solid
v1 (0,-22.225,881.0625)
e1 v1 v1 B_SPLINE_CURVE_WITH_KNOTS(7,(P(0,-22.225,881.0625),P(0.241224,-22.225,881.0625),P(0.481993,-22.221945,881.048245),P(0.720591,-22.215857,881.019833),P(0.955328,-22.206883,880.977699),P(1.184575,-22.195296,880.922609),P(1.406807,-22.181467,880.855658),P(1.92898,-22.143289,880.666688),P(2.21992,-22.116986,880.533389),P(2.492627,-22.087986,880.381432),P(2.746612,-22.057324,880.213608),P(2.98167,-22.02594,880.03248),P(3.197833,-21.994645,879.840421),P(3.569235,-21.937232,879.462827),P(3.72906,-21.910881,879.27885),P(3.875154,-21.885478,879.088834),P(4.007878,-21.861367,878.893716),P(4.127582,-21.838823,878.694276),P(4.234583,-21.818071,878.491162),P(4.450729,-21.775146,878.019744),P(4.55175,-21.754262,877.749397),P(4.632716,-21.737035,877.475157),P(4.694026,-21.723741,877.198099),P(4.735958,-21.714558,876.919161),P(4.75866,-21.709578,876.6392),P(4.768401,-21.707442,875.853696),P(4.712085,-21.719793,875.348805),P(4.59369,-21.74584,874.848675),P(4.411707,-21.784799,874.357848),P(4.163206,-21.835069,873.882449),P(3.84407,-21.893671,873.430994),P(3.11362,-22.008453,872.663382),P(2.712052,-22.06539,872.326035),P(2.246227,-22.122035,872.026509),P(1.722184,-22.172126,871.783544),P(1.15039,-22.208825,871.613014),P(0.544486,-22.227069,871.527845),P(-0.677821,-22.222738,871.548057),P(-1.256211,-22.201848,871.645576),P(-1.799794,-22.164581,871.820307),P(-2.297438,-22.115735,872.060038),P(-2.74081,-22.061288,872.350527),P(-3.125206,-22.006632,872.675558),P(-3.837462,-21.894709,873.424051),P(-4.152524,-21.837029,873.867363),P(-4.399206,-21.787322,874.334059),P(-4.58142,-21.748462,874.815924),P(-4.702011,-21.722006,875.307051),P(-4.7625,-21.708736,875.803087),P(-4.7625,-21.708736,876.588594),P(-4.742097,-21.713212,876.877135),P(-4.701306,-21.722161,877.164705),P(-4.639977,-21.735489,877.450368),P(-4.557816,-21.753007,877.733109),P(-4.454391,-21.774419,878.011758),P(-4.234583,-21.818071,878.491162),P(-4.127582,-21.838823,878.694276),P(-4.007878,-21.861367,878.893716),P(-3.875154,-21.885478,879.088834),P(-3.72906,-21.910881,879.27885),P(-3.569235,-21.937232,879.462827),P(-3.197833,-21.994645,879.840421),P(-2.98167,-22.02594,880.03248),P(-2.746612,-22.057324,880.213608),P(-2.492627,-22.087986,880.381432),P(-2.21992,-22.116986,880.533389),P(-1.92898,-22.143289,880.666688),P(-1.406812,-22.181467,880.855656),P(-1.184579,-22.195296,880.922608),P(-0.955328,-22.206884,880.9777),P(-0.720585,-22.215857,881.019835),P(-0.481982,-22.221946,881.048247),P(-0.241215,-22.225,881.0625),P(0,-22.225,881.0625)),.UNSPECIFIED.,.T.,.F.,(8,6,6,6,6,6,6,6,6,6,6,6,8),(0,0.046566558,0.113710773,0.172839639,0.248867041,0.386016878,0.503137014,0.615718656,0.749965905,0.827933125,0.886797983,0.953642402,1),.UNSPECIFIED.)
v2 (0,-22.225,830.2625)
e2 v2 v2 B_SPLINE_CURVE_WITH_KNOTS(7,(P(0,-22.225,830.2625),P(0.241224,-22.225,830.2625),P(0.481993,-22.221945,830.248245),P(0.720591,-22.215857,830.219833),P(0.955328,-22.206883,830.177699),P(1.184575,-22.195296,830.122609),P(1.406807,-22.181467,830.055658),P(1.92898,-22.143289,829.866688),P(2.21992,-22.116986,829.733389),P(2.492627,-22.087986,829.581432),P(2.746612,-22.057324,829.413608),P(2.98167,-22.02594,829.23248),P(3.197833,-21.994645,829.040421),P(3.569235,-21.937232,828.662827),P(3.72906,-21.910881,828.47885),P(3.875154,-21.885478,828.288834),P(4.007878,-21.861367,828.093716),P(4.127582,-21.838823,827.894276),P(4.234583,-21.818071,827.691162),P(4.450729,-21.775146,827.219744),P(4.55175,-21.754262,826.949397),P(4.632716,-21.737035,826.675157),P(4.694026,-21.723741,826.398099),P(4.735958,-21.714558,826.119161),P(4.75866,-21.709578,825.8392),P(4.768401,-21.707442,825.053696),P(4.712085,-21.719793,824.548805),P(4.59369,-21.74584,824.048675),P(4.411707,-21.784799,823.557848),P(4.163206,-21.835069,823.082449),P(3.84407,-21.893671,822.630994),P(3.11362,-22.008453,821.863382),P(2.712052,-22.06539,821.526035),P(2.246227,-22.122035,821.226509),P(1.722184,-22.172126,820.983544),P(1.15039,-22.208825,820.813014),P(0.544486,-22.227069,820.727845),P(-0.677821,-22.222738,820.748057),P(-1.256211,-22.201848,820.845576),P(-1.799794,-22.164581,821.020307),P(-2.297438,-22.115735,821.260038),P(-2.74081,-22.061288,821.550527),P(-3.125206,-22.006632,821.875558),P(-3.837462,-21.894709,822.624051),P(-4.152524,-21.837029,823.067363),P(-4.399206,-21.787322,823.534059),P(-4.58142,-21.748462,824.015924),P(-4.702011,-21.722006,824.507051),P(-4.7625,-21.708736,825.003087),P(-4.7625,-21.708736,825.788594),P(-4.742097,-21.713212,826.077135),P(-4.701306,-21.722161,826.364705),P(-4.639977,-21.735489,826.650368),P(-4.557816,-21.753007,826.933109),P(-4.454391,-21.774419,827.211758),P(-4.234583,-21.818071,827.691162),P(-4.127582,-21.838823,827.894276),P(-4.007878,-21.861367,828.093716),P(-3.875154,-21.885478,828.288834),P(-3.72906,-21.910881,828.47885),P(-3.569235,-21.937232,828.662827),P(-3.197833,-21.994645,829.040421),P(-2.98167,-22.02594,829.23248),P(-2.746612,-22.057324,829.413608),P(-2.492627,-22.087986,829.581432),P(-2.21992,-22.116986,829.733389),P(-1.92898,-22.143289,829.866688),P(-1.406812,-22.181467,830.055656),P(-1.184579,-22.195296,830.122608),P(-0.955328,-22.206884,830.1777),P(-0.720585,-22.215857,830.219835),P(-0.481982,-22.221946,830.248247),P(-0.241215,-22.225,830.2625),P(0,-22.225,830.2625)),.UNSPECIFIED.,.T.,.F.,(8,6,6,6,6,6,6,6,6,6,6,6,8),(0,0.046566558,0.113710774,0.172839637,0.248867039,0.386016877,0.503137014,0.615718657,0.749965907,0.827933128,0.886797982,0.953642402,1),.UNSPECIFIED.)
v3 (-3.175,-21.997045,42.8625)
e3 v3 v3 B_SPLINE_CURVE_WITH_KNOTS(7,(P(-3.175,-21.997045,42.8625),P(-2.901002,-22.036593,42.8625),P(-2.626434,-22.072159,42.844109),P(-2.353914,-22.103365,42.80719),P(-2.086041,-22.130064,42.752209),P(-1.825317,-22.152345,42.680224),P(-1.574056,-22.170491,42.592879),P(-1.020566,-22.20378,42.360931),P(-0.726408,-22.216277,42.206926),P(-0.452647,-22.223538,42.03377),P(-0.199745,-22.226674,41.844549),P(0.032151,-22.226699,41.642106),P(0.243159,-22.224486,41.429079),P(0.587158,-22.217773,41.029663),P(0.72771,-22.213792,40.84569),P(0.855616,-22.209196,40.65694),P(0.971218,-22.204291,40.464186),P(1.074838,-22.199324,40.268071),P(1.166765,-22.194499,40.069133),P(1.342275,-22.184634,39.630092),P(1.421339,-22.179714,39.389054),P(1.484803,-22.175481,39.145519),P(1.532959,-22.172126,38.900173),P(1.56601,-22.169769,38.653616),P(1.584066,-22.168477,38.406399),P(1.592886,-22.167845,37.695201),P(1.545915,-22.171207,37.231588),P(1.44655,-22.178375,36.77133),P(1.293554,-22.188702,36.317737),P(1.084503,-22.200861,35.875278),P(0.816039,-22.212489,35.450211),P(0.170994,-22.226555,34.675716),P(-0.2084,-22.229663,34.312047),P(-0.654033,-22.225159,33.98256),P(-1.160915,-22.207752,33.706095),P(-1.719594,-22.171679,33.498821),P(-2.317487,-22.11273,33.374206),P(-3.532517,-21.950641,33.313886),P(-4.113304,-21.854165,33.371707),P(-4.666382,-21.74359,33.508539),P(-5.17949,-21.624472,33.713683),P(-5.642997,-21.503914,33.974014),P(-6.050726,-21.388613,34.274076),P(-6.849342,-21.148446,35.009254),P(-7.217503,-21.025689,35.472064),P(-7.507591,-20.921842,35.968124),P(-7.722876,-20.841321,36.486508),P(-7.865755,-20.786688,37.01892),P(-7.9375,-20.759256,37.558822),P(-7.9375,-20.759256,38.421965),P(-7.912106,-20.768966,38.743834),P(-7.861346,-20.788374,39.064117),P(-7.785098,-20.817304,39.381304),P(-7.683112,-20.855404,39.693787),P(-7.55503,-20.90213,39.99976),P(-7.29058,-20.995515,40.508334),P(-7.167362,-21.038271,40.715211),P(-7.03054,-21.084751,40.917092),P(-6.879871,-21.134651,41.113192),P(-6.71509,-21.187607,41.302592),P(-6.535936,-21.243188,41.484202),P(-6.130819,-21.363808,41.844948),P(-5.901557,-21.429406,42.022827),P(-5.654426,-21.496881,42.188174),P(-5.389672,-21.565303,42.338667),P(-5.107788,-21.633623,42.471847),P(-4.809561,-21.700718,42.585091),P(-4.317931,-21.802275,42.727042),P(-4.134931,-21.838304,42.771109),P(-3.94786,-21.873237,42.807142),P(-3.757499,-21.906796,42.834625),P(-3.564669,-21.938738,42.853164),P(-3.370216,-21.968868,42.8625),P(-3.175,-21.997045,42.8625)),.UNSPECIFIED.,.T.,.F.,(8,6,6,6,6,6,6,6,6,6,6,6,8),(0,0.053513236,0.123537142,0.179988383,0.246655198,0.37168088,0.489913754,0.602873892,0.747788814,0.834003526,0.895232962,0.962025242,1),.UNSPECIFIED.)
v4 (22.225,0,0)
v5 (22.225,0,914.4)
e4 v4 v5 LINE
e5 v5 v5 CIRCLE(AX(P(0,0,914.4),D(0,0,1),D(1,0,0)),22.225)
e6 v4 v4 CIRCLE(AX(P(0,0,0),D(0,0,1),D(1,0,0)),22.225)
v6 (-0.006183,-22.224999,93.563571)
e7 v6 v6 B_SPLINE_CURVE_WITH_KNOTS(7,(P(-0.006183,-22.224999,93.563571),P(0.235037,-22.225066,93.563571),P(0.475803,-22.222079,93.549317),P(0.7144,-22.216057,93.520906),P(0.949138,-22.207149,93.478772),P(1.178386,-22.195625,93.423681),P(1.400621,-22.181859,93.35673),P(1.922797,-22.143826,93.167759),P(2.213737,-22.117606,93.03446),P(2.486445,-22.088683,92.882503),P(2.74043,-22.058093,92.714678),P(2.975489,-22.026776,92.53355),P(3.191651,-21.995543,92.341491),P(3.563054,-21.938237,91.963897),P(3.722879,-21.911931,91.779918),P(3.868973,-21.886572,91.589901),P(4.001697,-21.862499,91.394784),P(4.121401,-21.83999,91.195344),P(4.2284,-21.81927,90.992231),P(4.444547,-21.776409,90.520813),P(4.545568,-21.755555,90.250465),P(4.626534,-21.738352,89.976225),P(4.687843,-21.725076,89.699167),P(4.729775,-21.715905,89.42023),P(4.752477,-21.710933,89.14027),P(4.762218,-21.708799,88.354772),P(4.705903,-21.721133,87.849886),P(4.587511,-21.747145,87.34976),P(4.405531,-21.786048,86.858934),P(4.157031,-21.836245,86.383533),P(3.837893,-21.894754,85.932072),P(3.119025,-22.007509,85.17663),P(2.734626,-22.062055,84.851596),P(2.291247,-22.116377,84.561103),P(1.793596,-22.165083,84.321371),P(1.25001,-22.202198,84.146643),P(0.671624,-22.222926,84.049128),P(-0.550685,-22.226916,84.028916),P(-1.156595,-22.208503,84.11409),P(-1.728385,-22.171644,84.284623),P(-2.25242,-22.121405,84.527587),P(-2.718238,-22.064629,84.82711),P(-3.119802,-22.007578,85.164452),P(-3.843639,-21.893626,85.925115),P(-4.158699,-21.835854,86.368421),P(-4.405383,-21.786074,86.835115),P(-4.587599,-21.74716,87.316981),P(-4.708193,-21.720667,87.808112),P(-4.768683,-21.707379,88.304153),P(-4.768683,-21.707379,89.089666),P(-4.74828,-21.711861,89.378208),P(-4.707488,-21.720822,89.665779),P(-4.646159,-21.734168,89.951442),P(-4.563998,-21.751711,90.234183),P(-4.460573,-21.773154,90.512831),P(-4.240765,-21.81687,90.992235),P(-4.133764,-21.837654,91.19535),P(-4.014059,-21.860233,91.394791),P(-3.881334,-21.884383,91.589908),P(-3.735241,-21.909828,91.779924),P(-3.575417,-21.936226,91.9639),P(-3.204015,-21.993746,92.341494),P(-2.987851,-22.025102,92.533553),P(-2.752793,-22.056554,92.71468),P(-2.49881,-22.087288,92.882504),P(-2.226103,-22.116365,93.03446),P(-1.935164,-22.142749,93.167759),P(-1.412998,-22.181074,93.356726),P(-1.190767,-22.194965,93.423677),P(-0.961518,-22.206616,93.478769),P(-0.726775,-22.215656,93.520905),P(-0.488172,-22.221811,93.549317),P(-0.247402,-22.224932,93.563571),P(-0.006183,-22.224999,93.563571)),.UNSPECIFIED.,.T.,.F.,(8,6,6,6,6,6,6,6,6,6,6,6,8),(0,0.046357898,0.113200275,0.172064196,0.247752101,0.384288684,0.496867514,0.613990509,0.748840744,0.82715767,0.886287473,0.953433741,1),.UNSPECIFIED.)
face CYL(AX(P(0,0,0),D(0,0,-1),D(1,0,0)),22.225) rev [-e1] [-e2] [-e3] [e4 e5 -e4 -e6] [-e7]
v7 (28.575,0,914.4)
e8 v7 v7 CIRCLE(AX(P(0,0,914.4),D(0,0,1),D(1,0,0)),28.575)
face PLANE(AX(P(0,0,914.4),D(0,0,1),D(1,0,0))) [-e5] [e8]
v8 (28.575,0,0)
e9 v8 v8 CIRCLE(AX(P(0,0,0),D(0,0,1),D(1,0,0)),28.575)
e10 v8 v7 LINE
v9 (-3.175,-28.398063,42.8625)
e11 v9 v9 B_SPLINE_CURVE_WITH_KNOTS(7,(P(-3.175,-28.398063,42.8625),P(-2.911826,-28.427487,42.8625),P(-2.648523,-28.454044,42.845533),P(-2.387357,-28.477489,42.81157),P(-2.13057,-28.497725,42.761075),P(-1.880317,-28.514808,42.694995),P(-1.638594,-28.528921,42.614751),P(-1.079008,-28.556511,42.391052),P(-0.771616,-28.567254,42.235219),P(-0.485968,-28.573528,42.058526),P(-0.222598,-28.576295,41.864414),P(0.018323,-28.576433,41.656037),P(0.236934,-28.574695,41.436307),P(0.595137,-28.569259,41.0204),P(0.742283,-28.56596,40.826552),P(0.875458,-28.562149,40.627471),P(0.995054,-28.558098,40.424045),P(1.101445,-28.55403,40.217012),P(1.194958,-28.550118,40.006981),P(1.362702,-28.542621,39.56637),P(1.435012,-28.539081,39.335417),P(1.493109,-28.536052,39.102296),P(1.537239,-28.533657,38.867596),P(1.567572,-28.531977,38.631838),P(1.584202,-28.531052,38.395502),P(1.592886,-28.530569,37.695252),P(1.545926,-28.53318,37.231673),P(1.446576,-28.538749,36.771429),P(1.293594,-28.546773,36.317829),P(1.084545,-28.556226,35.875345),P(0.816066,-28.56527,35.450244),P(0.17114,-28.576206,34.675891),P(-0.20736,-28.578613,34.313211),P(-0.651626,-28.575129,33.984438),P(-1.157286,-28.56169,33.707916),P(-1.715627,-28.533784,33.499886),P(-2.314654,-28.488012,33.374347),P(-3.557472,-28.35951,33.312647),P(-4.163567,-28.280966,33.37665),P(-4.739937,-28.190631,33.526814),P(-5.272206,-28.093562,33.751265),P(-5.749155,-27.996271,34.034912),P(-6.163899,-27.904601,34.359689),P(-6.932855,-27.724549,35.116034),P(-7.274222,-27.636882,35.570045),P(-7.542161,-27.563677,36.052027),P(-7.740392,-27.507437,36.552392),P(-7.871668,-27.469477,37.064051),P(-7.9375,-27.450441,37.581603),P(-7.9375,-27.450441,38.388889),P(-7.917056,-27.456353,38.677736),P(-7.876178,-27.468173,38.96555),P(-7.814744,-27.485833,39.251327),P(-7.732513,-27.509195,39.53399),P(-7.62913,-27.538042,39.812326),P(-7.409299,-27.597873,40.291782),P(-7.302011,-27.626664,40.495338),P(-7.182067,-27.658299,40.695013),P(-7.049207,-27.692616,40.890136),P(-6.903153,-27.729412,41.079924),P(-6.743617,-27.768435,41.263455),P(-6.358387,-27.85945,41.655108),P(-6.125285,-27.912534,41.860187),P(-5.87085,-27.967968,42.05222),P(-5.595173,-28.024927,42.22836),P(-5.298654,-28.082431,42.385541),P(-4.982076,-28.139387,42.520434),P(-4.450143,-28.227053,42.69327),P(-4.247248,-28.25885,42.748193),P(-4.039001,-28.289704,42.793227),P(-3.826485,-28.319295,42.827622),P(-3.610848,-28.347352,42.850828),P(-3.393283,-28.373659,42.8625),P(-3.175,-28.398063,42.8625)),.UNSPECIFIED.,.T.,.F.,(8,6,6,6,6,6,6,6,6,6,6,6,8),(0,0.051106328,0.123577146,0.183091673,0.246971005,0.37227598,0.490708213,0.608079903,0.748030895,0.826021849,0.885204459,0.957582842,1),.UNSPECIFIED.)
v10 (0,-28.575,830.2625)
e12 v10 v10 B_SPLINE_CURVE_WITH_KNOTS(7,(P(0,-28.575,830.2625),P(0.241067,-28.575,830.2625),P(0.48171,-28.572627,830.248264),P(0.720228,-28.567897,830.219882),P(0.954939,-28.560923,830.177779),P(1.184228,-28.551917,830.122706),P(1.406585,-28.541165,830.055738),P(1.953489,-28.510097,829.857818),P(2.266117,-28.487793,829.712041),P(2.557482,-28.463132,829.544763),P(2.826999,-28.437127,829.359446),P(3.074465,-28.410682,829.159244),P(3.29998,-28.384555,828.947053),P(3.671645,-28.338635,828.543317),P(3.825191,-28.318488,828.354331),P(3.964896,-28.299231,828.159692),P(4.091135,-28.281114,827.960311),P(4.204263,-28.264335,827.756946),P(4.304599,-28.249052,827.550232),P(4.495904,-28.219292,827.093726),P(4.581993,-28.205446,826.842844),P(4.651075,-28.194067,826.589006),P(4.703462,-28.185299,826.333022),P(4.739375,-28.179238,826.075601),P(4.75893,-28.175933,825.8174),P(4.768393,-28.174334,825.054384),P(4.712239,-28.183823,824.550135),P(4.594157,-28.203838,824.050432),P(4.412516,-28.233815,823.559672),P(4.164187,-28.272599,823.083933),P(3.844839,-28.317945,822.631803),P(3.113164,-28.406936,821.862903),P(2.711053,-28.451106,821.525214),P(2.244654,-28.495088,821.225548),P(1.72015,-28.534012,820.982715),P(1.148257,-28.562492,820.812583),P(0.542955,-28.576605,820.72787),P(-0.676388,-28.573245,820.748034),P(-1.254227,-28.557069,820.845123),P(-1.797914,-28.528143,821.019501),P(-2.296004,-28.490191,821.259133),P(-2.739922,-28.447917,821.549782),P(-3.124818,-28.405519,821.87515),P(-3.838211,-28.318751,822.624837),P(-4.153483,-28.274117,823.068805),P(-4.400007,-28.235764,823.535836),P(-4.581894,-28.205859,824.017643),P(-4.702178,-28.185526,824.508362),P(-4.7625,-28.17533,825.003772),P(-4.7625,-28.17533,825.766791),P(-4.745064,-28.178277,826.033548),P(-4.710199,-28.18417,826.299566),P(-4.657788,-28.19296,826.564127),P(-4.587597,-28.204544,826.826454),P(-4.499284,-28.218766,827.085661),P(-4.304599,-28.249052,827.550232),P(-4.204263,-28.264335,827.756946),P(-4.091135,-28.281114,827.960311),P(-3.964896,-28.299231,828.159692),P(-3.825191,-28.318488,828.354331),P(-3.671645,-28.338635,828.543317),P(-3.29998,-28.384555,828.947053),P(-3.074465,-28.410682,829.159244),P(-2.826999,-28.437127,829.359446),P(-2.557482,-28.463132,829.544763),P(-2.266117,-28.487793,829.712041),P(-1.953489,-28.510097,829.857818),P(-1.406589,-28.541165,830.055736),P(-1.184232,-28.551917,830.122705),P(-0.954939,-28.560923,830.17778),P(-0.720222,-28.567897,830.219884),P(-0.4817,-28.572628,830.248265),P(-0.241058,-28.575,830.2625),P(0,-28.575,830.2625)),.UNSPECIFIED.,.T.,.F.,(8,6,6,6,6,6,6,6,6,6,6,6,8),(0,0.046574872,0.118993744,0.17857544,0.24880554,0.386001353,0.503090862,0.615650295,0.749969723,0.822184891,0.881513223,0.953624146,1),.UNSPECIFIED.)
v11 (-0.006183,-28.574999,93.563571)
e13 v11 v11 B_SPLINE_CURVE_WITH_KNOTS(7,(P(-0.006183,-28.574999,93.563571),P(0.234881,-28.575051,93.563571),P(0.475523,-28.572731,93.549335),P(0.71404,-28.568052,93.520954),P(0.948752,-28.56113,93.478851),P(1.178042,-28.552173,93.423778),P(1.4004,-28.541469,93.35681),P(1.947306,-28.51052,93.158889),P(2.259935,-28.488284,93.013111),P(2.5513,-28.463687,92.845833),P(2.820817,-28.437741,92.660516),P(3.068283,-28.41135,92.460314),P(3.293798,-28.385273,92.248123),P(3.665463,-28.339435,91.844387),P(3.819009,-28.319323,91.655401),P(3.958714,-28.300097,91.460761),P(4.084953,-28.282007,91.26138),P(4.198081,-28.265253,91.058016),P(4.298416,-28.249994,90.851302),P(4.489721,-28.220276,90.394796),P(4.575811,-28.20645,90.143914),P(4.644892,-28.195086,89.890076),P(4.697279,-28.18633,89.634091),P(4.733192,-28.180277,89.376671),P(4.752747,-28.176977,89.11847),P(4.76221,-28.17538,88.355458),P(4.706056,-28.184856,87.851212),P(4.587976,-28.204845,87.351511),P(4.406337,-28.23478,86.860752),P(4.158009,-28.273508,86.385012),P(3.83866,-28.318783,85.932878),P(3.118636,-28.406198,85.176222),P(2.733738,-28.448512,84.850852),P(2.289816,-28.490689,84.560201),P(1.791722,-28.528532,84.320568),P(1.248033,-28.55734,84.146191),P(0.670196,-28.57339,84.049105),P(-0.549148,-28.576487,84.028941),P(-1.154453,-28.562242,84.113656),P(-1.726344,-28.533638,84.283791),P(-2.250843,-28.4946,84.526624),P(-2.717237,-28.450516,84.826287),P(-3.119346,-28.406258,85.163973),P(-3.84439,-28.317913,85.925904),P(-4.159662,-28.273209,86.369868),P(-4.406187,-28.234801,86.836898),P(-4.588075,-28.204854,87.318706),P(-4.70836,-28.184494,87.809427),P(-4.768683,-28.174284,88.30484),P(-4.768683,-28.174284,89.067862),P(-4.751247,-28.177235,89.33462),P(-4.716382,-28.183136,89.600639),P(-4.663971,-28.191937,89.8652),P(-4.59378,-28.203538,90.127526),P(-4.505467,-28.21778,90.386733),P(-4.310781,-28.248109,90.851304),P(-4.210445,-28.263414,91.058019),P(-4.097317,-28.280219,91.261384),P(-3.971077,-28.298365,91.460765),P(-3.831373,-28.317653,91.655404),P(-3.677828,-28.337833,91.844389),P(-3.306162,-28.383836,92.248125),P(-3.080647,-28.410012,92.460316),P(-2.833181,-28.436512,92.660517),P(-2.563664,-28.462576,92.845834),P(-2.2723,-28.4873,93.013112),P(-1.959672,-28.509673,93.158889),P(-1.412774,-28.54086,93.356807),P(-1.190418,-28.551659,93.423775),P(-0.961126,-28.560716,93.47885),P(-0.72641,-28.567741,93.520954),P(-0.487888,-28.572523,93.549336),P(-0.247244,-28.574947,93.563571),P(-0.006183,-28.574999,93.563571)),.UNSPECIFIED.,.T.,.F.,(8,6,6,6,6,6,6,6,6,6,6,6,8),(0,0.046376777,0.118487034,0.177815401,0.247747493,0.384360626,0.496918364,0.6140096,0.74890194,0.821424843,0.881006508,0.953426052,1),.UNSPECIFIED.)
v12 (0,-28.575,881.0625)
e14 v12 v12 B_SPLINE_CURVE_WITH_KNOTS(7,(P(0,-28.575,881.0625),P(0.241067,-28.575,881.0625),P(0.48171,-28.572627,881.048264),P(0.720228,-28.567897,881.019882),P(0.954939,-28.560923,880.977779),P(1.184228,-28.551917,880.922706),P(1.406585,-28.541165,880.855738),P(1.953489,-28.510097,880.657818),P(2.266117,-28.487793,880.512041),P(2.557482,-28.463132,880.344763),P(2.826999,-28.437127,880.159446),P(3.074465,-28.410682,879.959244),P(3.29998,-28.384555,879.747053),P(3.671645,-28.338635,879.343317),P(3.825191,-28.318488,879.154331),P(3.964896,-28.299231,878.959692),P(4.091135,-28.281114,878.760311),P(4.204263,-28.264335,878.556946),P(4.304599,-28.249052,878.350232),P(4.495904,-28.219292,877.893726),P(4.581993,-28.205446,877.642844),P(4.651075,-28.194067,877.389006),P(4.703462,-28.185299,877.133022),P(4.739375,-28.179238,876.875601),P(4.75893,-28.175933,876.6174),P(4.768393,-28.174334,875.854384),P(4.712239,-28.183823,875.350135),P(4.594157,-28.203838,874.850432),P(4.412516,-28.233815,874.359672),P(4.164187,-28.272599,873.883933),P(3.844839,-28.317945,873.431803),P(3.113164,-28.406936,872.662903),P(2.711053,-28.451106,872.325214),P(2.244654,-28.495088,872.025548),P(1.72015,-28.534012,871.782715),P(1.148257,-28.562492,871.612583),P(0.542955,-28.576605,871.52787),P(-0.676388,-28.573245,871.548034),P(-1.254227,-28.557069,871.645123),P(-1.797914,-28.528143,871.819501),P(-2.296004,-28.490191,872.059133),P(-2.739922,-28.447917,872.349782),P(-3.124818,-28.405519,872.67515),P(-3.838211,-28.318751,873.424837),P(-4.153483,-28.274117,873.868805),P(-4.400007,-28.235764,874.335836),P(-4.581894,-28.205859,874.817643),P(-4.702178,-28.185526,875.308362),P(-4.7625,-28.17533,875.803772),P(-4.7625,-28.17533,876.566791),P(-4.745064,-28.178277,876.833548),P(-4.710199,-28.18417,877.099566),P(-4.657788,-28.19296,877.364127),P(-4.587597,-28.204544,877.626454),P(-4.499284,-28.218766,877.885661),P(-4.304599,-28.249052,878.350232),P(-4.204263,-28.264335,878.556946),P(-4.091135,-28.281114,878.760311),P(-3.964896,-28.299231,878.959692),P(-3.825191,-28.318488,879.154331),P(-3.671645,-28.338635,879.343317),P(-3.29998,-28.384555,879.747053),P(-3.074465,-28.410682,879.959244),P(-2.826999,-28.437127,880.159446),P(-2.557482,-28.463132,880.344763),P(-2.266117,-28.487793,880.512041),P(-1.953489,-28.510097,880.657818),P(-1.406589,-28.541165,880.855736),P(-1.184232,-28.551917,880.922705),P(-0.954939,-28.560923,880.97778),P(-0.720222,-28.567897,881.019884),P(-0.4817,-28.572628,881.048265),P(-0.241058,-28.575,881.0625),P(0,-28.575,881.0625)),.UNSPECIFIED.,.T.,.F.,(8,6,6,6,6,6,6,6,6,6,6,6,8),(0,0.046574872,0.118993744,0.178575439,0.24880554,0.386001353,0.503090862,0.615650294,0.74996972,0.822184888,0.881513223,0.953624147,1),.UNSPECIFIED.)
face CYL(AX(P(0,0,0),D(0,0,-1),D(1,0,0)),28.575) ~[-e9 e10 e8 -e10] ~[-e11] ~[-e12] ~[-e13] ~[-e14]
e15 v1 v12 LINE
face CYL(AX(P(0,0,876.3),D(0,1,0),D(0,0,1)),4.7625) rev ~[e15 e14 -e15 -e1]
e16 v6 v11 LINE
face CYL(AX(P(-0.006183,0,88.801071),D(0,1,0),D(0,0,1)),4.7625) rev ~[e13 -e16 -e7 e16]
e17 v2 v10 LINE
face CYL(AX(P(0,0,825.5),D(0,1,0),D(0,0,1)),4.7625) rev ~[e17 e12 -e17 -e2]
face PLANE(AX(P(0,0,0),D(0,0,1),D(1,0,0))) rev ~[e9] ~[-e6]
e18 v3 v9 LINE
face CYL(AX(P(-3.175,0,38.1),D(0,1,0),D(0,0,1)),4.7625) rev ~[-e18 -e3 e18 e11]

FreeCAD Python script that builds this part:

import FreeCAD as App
import Part
import Sketcher
Q = App.Units.Quantity

doc = App.newDocument("Part")
body = doc.addObject("PartDesign::Body", "Body")

sketch1 = body.newObject("Sketcher::SketchObject", "Sketch")
sketch1.AttachmentSupport = (doc.getObject("XY_Plane"), [""])
sketch1.MapMode = "FlatFace"
sketch1.addGeometry(Part.Circle(App.Vector(0, 0, 0), App.Vector(0, 0, 1), 29), False)
sketch1.addGeometry(Part.Circle(App.Vector(0, 0, 0), App.Vector(0, 0, 1), 22), False)
sketch1.addConstraint(Sketcher.Constraint("Coincident", 0, 3, -1, 1))
sketch1.addConstraint(Sketcher.Constraint("Coincident", 1, 3, -1, 1))
sketch1.addConstraint(Sketcher.Constraint("Diameter", 0, Q("2.25 in")))
sketch1.addConstraint(Sketcher.Constraint("Diameter", 1, Q("1.75 in")))
pad1 = body.newObject("PartDesign::Pad", "Pad")
pad1.Profile = sketch1
pad1.Length = Q("36 in")

sketch2 = body.newObject("Sketcher::SketchObject", "Sketch001")
sketch2.AttachmentSupport = (doc.getObject("XZ_Plane"), [""])
sketch2.MapMode = "FlatFace"
sketch2.addGeometry(Part.Circle(App.Vector(-3.2, 38.1, 0), App.Vector(0, 0, 1), 4.8), False)
sketch2.addGeometry(Part.Circle(App.Vector(0, 88.8, 0), App.Vector(0, 0, 1), 4.8), False)
sketch2.addGeometry(Part.Circle(App.Vector(0, 876.3, 0), App.Vector(0, 0, 1), 4.8), False)
sketch2.addGeometry(Part.Circle(App.Vector(0, 825.5, 0), App.Vector(0, 0, 1), 4.8), False)
sketch2.addConstraint(Sketcher.Constraint("Equal", 0, 1))
sketch2.addConstraint(Sketcher.Constraint("Equal", 1, 2))
sketch2.addConstraint(Sketcher.Constraint("Equal", 2, 3))
sketch2.addConstraint(Sketcher.Constraint("PointOnObject", 2, 3, -2))
sketch2.addConstraint(Sketcher.Constraint("PointOnObject", 3, 3, -2))
sketch2.addConstraint(Sketcher.Constraint("Diameter", 0, Q("0.375 in")))
sketch2.addConstraint(Sketcher.Constraint("DistanceY", 0, 3, 2, 3, Q("33 in")))
sketch2.addConstraint(Sketcher.Constraint("DistanceY", 3, 3, 2, 3, Q("2 in")))
sketch2.addConstraint(Sketcher.Constraint("DistanceY", -1, 1, 0, 3, Q("1.5 in")))
sketch2.addConstraint(Sketcher.Constraint("DistanceX", 0, 3, -1, 1, Q("0.125 in")))
sketch2.addConstraint(Sketcher.Constraint("DistanceY", -1, 1, 1, 3, 88.801071))
sketch2.addConstraint(Sketcher.Constraint("DistanceX", 1, 3, -1, 1, 0.006183))
pocket1 = body.newObject("PartDesign::Pocket", "Pocket")
pocket1.Profile = sketch2
pocket1.Type = "ThroughAll"
pocket1.Reversed = True

doc.recompute()
